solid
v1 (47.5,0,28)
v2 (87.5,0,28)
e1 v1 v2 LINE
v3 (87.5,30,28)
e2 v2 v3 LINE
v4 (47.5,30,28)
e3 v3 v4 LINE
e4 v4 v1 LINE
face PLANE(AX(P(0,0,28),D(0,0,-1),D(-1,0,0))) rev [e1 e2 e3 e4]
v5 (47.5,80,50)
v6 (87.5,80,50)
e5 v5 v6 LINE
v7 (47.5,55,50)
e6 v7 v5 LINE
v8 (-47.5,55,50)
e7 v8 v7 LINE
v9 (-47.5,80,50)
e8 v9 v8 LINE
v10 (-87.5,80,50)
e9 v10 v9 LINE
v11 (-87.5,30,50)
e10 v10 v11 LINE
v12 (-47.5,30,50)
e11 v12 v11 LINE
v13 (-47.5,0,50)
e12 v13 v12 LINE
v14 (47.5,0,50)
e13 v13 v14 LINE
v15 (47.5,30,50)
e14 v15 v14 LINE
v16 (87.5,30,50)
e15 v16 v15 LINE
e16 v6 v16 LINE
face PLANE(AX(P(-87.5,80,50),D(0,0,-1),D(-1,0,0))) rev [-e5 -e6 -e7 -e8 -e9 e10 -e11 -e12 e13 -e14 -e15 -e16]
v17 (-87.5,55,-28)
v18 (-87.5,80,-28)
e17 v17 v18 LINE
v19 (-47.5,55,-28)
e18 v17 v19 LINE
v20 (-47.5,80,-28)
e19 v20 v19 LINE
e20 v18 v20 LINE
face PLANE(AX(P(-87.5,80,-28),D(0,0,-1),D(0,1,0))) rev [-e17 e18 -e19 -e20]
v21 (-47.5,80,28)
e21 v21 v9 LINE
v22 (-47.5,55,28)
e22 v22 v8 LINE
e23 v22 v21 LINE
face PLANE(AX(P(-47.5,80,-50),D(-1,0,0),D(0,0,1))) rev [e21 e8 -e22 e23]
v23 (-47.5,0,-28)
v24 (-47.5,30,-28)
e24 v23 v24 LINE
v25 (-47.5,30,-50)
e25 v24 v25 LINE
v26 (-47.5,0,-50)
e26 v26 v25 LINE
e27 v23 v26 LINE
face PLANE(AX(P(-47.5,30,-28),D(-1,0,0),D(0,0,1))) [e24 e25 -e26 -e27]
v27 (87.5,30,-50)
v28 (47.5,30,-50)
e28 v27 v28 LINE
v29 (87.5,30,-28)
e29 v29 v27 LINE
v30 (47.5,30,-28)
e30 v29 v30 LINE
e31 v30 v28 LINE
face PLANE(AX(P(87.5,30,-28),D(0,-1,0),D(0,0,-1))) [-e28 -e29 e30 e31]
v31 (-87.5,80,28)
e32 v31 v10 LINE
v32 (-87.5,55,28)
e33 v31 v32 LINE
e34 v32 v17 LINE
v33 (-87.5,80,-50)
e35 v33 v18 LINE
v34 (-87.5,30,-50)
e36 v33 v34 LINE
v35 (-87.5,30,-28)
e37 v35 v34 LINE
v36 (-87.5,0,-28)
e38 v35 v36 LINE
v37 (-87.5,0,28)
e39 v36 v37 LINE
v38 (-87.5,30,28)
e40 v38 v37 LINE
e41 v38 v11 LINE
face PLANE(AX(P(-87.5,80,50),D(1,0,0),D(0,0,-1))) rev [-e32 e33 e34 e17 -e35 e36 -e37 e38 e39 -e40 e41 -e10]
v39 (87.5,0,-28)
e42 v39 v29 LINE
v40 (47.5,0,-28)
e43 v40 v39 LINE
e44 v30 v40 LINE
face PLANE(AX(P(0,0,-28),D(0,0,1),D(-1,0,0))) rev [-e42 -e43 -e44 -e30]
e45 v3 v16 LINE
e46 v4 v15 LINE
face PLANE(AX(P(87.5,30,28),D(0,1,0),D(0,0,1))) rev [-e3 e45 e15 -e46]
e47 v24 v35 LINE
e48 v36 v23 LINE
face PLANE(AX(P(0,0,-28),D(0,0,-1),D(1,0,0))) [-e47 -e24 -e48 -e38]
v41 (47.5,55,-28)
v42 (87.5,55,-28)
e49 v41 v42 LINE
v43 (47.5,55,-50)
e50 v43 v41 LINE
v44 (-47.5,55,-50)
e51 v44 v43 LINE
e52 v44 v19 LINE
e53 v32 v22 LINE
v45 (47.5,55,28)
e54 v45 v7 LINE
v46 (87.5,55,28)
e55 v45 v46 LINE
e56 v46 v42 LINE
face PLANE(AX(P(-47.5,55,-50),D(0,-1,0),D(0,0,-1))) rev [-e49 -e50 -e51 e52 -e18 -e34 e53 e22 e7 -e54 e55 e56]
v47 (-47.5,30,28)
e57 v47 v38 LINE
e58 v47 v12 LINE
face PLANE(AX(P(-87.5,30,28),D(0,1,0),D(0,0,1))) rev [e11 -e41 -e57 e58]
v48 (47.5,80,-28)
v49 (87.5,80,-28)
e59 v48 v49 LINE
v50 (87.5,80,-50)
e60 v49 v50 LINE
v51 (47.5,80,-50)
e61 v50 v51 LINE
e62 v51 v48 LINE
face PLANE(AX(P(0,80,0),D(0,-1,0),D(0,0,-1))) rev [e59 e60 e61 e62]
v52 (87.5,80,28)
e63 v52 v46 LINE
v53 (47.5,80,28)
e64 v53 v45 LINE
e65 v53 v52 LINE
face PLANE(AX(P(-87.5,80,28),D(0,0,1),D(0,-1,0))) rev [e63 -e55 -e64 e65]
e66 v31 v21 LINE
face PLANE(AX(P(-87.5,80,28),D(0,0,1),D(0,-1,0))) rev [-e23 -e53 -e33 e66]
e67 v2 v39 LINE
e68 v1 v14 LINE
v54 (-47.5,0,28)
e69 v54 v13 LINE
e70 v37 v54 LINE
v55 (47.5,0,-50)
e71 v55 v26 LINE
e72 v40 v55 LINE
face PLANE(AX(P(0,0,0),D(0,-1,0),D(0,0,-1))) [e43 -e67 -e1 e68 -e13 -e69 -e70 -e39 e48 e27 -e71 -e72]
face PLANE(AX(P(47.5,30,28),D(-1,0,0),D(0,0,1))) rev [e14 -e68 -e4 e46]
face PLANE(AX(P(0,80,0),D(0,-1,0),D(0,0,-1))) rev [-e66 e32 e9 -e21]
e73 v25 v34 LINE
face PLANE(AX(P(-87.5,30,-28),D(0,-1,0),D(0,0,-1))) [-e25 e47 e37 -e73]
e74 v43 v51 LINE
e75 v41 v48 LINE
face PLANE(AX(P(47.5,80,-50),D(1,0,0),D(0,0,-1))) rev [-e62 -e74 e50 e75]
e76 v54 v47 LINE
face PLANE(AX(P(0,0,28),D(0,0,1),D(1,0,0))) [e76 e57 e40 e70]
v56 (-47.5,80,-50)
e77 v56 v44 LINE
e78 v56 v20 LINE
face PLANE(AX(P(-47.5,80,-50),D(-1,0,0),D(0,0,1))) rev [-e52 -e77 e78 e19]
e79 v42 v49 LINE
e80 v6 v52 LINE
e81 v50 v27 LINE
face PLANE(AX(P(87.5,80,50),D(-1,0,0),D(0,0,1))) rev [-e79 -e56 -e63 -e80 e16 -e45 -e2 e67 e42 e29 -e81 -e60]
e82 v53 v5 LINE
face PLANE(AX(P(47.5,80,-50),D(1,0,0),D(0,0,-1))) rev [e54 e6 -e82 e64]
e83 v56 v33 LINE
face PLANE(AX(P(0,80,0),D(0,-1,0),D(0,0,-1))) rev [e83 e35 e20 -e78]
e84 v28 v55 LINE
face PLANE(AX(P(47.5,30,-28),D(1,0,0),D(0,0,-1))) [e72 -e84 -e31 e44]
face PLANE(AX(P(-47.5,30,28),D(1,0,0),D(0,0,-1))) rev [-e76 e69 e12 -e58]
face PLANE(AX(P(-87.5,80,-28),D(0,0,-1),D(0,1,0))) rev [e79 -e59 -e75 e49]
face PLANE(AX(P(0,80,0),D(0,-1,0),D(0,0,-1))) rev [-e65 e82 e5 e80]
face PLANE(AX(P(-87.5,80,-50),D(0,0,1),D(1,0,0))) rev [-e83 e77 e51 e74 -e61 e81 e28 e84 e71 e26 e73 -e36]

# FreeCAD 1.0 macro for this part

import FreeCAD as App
import Part
import Sketcher

V = App.Vector
Q = App.Units.Quantity


def add_polygon(sketch, points):
    """Adds a closed chain of lines whose ends are joined by coincident constraints."""
    first, n = sketch.GeometryCount, len(points)
    for a, b in zip(points, points[1:] + points[:1]):
        sketch.addGeometry(Part.LineSegment(App.Vector(*a, 0), App.Vector(*b, 0)), False)
    for i in range(n):
        sketch.addConstraint(Sketcher.Constraint("Coincident", first + i, 2, first + (i + 1) % n, 1))

doc = App.newDocument("Part")
params = doc.addObject("Spreadsheet::Sheet", "Params")
for row, (alias, value) in enumerate([
    ("sketch1_width", "175 mm"),
    ("sketch1_height", "100 mm"),
    ("pad1_length", "80 mm"),
    ("sketch2_width", "95 mm"),
    ("sketch2_height", "25 mm"),
    ("sketch3_width", "25 mm"),
    ("sketch3_height", "56 mm"),
    ("sketch4_width", "40 mm"),
    ("sketch4_height", "30 mm"),
    ("pocket3_length", "22 mm"),
], start=1):
    params.set(f"A{row}", alias)
    params.set(f"B{row}", "=" + value)
    params.setAlias(f"B{row}", alias)

body = doc.addObject("PartDesign::Body", "Body")

# Sketch on XZ plane
sketch1 = doc.addObject("Sketcher::SketchObject", "Sketch")
body.addObject(sketch1)
sketch1.AttachmentSupport = (doc.XZ_Plane, [""])
sketch1.MapMode = "FlatFace"
add_polygon(sketch1, [(-88, -50), (-88, 50), (88, 50), (88, -50)])  # lines 0-3
sketch1.addConstraint([
    Sketcher.Constraint("Vertical", 0),
    Sketcher.Constraint("Horizontal", 1),
    Sketcher.Constraint("Vertical", 2),
    Sketcher.Constraint("Horizontal", 3),
    Sketcher.Constraint("Symmetric", 0, 2, 2, 2, -1, 1),
    Sketcher.Constraint("DistanceX", 1, 1, 1, 2, Q("175 mm")),
    Sketcher.Constraint("DistanceY", 0, 1, 0, 2, Q("100 mm")),
])
sketch1.setExpression("Constraints[9]", "Params.sketch1_width")
sketch1.setExpression("Constraints[10]", "Params.sketch1_height")
pad1 = doc.addObject("PartDesign::Pad", "Pad")
body.addObject(pad1)
pad1.Profile = sketch1
pad1.setExpression("Length", "Params.pad1_length")
pad1.Reversed = True

# Sketch on XY plane
sketch2 = doc.addObject("Sketcher::SketchObject", "Sketch001")
body.addObject(sketch2)
sketch2.AttachmentSupport = (doc.XY_Plane, [""])
sketch2.MapMode = "FlatFace"
sketch2.AttachmentOffset = App.Placement(V(0, 0, 50), App.Rotation())
add_polygon(sketch2, [(-48, 80), (-48, 55), (48, 55), (48, 80)])  # lines 0-3
sketch2.addConstraint([
    Sketcher.Constraint("Vertical", 0),
    Sketcher.Constraint("Horizontal", 1),
    Sketcher.Constraint("Vertical", 2),
    Sketcher.Constraint("Horizontal", 3),
    Sketcher.Constraint("DistanceX", 1, 1, 1, 2, Q("95 mm")),
    Sketcher.Constraint("DistanceY", 0, 2, 0, 1, Q("25 mm")),
    Sketcher.Constraint("DistanceY", -1, 1, 0, 2, Q("55 mm")),
    Sketcher.Constraint("DistanceX", 0, 2, -1, 1, Q("47.5 mm")),
])
sketch2.setExpression("Constraints[8]", "Params.sketch2_width")
sketch2.setExpression("Constraints[9]", "Params.sketch2_height")
pocket1 = doc.addObject("PartDesign::Pocket", "Pocket")
body.addObject(pocket1)
pocket1.Profile = sketch2
pocket1.Type = "ThroughAll"

# Sketch on YZ plane
sketch3 = doc.addObject("Sketcher::SketchObject", "Sketch002")
body.addObject(sketch3)
sketch3.AttachmentSupport = (doc.YZ_Plane, [""])
sketch3.MapMode = "FlatFace"
sketch3.AttachmentOffset = App.Placement(V(0, 0, 87.5), App.Rotation())
add_polygon(sketch3, [(80, 28), (55, 28), (55, -28), (80, -28)])  # lines 0-3
sketch3.addConstraint([
    Sketcher.Constraint("Horizontal", 0),
    Sketcher.Constraint("Vertical", 1),
    Sketcher.Constraint("Horizontal", 2),
    Sketcher.Constraint("Vertical", 3),
    Sketcher.Constraint("DistanceX", 0, 2, 0, 1, Q("25 mm")),
    Sketcher.Constraint("DistanceY", 1, 2, 1, 1, Q("56 mm")),
    Sketcher.Constraint("DistanceX", -1, 1, 0, 2, Q("55 mm")),
    Sketcher.Constraint("DistanceY", -1, 1, 0, 2, Q("28 mm")),
])
sketch3.setExpression("Constraints[8]", "Params.sketch3_width")
sketch3.setExpression("Constraints[9]", "Params.sketch3_height")
pocket2 = doc.addObject("PartDesign::Pocket", "Pocket001")
body.addObject(pocket2)
pocket2.Profile = sketch3
pocket2.Type = "ThroughAll"

# Sketch on XY plane
sketch4 = doc.addObject("Sketcher::SketchObject", "Sketch003")
body.addObject(sketch4)
sketch4.AttachmentSupport = (doc.XY_Plane, [""])
sketch4.MapMode = "FlatFace"
sketch4.AttachmentOffset = App.Placement(V(0, 0, 50), App.Rotation())
add_polygon(sketch4, [(-88, 30), (-88, 0), (-48, 0), (-48, 30)])  # lines 0-3
add_polygon(sketch4, [(48, 30), (48, 0), (88, 0), (88, 30)])  # lines 4-7
sketch4.addConstraint([
    Sketcher.Constraint("Vertical", 0),
    Sketcher.Constraint("Horizontal", 1),
    Sketcher.Constraint("Vertical", 2),
    Sketcher.Constraint("Horizontal", 3),
    Sketcher.Constraint("Vertical", 4),
    Sketcher.Constraint("Horizontal", 5),
    Sketcher.Constraint("Vertical", 6),
    Sketcher.Constraint("Horizontal", 7),
    Sketcher.Constraint("Symmetric", 1, 2, 4, 2, -1, 1),
    Sketcher.Constraint("Symmetric", 0, 2, 5, 2, -2),
    Sketcher.Constraint("Horizontal", 3, 2, 6, 2),
    Sketcher.Constraint("DistanceX", 1, 1, 1, 2, Q("40 mm")),
    Sketcher.Constraint("DistanceY", 0, 2, 0, 1, Q("30 mm")),
    Sketcher.Constraint("DistanceX", 1, 2, 4, 2, Q("95 mm")),
])
sketch4.setExpression("Constraints[19]", "Params.sketch4_width")
sketch4.setExpression("Constraints[20]", "Params.sketch4_height")
pocket3 = doc.addObject("PartDesign::Pocket", "Pocket002")
body.addObject(pocket3)
pocket3.Profile = sketch4
pocket3.setExpression("Length", "Params.pocket3_length")
doc.recompute()

mirrored = doc.addObject("PartDesign::Mirrored", "Mirrored")
body.addObject(mirrored)
mirrored.Originals = [pocket3]
mirrored.MirrorPlane = (doc.XY_Plane, [""])
body.Tip = mirrored

doc.recompute()
